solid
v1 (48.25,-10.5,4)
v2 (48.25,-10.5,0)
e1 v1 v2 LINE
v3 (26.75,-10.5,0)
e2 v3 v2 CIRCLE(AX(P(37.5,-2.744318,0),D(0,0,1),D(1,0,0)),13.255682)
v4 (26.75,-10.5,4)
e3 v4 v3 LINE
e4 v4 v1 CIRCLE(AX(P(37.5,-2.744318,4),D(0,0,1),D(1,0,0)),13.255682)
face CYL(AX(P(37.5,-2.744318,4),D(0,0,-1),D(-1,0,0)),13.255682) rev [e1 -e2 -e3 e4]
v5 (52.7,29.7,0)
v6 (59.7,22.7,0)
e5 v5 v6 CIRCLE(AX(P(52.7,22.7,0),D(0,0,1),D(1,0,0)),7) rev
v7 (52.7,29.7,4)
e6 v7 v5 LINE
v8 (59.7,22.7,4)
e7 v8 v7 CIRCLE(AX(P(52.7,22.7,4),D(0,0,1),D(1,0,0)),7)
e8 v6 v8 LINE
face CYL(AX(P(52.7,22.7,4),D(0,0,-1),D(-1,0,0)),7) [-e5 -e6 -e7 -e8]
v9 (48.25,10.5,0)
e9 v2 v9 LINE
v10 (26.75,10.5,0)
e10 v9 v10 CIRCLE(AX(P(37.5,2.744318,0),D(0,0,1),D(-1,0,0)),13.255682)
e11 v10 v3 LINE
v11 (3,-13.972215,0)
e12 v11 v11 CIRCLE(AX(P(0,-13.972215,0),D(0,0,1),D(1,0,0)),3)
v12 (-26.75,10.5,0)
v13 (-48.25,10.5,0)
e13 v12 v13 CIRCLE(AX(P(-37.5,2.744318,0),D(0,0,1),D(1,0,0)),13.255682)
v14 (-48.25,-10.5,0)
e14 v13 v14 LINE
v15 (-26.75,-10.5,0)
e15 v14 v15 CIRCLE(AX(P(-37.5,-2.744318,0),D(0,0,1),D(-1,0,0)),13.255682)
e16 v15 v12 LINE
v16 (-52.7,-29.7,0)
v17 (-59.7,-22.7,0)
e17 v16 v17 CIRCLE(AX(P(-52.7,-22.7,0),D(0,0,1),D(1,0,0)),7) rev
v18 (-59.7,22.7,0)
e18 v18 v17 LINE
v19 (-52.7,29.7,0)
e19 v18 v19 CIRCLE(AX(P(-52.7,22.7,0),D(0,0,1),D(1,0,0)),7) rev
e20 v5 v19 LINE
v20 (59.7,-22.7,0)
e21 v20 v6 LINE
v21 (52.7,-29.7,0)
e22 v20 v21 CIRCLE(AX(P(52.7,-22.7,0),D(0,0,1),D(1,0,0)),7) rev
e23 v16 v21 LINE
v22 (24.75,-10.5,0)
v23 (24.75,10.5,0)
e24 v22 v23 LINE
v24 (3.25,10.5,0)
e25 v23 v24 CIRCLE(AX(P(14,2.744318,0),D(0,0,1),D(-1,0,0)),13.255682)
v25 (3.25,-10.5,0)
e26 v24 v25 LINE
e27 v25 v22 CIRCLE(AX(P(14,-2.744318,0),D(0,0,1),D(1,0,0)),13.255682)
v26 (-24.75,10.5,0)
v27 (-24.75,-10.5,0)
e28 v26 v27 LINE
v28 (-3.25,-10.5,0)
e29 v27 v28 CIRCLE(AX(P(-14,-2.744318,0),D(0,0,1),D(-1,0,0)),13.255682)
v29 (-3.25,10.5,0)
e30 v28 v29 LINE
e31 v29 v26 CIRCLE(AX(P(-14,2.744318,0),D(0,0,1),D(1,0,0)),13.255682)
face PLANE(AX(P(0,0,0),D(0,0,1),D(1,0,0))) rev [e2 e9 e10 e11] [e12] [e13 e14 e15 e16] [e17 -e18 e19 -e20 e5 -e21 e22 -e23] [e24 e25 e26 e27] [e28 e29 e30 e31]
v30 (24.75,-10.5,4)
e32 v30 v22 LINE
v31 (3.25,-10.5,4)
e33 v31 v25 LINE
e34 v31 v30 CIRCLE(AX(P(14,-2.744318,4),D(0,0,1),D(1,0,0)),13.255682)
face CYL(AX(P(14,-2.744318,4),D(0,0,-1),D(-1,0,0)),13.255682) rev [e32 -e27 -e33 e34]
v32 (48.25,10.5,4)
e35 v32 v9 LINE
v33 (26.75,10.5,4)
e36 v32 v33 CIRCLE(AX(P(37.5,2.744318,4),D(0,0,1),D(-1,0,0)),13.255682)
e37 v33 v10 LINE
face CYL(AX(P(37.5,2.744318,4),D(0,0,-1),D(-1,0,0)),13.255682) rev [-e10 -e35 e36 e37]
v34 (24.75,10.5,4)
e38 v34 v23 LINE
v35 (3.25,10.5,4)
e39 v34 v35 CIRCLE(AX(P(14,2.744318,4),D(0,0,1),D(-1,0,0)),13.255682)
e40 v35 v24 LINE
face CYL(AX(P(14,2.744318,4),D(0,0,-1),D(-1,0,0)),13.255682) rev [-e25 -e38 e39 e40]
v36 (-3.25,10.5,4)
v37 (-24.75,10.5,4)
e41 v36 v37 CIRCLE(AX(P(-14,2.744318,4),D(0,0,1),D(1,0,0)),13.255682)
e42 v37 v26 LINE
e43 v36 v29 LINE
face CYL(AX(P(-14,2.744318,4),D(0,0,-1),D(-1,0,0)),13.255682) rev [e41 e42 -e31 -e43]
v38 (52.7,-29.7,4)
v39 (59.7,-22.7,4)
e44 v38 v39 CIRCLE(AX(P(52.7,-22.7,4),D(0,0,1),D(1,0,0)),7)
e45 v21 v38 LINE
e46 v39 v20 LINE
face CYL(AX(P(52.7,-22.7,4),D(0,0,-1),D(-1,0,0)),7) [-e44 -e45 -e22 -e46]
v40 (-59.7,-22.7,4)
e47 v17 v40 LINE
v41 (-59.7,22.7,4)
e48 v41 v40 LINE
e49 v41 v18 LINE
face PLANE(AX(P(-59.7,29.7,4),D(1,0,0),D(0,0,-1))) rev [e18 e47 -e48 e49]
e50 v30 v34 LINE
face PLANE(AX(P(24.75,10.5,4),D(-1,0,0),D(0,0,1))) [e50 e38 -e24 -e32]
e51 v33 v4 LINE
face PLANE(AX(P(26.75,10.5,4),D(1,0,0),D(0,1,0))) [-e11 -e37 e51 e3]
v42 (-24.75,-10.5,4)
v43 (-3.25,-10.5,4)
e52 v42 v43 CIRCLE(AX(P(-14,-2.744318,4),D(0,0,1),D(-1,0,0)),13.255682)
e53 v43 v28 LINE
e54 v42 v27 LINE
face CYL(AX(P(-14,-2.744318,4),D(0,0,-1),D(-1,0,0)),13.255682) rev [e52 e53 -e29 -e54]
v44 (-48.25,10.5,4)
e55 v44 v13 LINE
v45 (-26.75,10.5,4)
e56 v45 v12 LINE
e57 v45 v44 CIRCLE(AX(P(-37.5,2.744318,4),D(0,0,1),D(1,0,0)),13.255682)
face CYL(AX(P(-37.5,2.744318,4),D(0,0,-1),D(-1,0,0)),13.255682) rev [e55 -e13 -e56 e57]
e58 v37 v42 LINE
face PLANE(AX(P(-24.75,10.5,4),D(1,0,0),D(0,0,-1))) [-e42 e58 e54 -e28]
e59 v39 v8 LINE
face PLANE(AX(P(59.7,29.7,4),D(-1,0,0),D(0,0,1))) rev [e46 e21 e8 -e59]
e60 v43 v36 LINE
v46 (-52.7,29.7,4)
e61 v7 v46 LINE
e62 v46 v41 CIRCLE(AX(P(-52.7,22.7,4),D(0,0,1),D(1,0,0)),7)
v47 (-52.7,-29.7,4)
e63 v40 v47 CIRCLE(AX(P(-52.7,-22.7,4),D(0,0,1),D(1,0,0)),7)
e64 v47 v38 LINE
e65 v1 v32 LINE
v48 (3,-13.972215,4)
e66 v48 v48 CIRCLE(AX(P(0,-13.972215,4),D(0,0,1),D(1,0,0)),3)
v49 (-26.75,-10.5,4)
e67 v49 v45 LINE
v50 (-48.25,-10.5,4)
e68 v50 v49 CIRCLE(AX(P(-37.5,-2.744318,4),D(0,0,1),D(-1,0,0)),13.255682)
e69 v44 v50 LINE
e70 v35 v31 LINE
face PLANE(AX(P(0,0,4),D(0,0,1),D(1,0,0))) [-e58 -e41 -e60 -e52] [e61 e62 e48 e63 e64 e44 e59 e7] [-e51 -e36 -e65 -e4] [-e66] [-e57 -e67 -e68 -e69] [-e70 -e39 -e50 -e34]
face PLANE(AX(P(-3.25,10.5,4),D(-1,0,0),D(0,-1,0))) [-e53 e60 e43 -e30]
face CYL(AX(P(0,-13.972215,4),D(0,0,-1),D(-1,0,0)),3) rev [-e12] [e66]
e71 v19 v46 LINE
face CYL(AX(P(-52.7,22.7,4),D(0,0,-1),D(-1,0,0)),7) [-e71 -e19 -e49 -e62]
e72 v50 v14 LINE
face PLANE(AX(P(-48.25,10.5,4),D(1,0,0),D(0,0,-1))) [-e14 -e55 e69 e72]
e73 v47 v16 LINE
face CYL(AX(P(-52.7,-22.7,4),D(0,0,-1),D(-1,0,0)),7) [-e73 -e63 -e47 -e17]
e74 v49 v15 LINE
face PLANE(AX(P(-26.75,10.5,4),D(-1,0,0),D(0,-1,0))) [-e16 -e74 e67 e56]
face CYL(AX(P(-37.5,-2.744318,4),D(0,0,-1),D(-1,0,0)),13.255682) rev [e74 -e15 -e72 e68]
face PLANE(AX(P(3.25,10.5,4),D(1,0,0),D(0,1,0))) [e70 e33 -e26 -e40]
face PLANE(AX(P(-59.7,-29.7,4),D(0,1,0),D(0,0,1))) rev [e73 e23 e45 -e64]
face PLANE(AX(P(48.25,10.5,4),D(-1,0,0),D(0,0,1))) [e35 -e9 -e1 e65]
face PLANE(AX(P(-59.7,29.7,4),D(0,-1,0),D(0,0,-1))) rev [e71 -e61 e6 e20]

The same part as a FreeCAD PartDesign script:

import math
import FreeCAD as App
import Part
import Sketcher
from FreeCAD import Vector
Q = App.Units.Quantity


def edges_at(feature, points):
    """Names of the edges that pass closest to the given points."""
    edges = feature.Shape.Edges
    near = lambda p: min(range(len(edges)), key=lambda i: edges[i].distToShape(Part.Vertex(*p))[0])
    return sorted({f"Edge{near(p) + 1}" for p in points})


def add_polygon(sketch, points):
    """Adds a closed chain of lines whose ends are joined by coincident constraints."""
    first, n = sketch.GeometryCount, len(points)
    for a, b in zip(points, points[1:] + points[:1]):
        sketch.addGeometry(Part.LineSegment(App.Vector(*a, 0), App.Vector(*b, 0)), False)
    for i in range(n):
        sketch.addConstraint(Sketcher.Constraint("Coincident", first + i, 2, first + (i + 1) % n, 1))

doc = App.newDocument("Part")
body = doc.addObject("PartDesign::Body", "Body")

# Sketch on XY plane
sketch1 = doc.addObject("Sketcher::SketchObject", "Sketch")
body.addObject(sketch1)
sketch1.AttachmentSupport = (doc.XY_Plane, [""])
sketch1.MapMode = "FlatFace"
add_polygon(sketch1, [(-59.7, 29.7), (-59.7, -29.7), (59.7, -29.7), (59.7, 29.7)])  # lines 0-3
sketch1.addGeometry(Part.Circle(Vector(0, -14, 0), Vector(0, 0, 1), 3), False)  # 4
sketch1.addGeometry(Part.ArcOfCircle(Part.Circle(Vector(-37.5, 2.7, 0), Vector(0, 0, 1), 13.3), math.radians(36), math.radians(144)), False)  # 5
sketch1.addGeometry(Part.LineSegment(Vector(-26.8, 10.5, 0), Vector(-26.8, -10.5, 0)), False)  # 6
sketch1.addGeometry(Part.ArcOfCircle(Part.Circle(Vector(-37.5, -2.7, 0), Vector(0, 0, 1), 13.3), math.radians(-144), math.radians(-36)), False)  # 7
sketch1.addGeometry(Part.LineSegment(Vector(-48.2, -10.5, 0), Vector(-48.2, 10.5, 0)), False)  # 8
sketch1.addGeometry(Part.ArcOfCircle(Part.Circle(Vector(-14, 2.7, 0), Vector(0, 0, 1), 13.3), math.radians(36), math.radians(144)), False)  # 9
sketch1.addGeometry(Part.LineSegment(Vector(-3.2, 10.5, 0), Vector(-3.2, -10.5, 0)), False)  # 10
sketch1.addGeometry(Part.ArcOfCircle(Part.Circle(Vector(-14, -2.7, 0), Vector(0, 0, 1), 13.3), math.radians(-144), math.radians(-36)), False)  # 11
sketch1.addGeometry(Part.LineSegment(Vector(-24.8, -10.5, 0), Vector(-24.8, 10.5, 0)), False)  # 12
sketch1.addGeometry(Part.LineSegment(Vector(3.2, -10.5, 0), Vector(3.2, 10.5, 0)), False)  # 13
sketch1.addGeometry(Part.ArcOfCircle(Part.Circle(Vector(14, 2.7, 0), Vector(0, 0, 1), 13.3), math.radians(36), math.radians(144)), False)  # 14
sketch1.addGeometry(Part.LineSegment(Vector(24.8, 10.5, 0), Vector(24.8, -10.5, 0)), False)  # 15
sketch1.addGeometry(Part.ArcOfCircle(Part.Circle(Vector(14, -2.7, 0), Vector(0, 0, 1), 13.3), math.radians(-144), math.radians(-36)), False)  # 16
sketch1.addGeometry(Part.ArcOfCircle(Part.Circle(Vector(37.5, 2.7, 0), Vector(0, 0, 1), 13.3), math.radians(36), math.radians(144)), False)  # 17
sketch1.addGeometry(Part.LineSegment(Vector(48.2, 10.5, 0), Vector(48.2, -10.5, 0)), False)  # 18
sketch1.addGeometry(Part.ArcOfCircle(Part.Circle(Vector(37.5, -2.7, 0), Vector(0, 0, 1), 13.3), math.radians(-144), math.radians(-36)), False)  # 19
sketch1.addGeometry(Part.LineSegment(Vector(26.8, -10.5, 0), Vector(26.8, 10.5, 0)), False)  # 20
sketch1.addConstraint([
    Sketcher.Constraint("Coincident", 5, 1, 6, 1),
    Sketcher.Constraint("Coincident", 6, 2, 7, 2),
    Sketcher.Constraint("Coincident", 7, 1, 8, 1),
    Sketcher.Constraint("Coincident", 8, 2, 5, 2),
    Sketcher.Constraint("Coincident", 9, 1, 10, 1),
    Sketcher.Constraint("Coincident", 10, 2, 11, 2),
    Sketcher.Constraint("Coincident", 11, 1, 12, 1),
    Sketcher.Constraint("Coincident", 12, 2, 9, 2),
    Sketcher.Constraint("Coincident", 13, 2, 14, 2),
    Sketcher.Constraint("Coincident", 14, 1, 15, 1),
    Sketcher.Constraint("Coincident", 15, 2, 16, 2),
    Sketcher.Constraint("Coincident", 16, 1, 13, 1),
    Sketcher.Constraint("Coincident", 17, 1, 18, 1),
    Sketcher.Constraint("Coincident", 18, 2, 19, 2),
    Sketcher.Constraint("Coincident", 19, 1, 20, 1),
    Sketcher.Constraint("Coincident", 20, 2, 17, 2),
    Sketcher.Constraint("Vertical", 0),
    Sketcher.Constraint("Horizontal", 1),
    Sketcher.Constraint("Vertical", 2),
    Sketcher.Constraint("Horizontal", 3),
    Sketcher.Constraint("Vertical", 6),
    Sketcher.Constraint("Vertical", 8),
    Sketcher.Constraint("Vertical", 10),
    Sketcher.Constraint("Vertical", 12),
    Sketcher.Constraint("Vertical", 13),
    Sketcher.Constraint("Vertical", 15),
    Sketcher.Constraint("Vertical", 18),
    Sketcher.Constraint("Vertical", 20),
    Sketcher.Constraint("Equal", 5, 7),
    Sketcher.Constraint("Equal", 7, 9),
    Sketcher.Constraint("Equal", 9, 11),
    Sketcher.Constraint("Equal", 11, 14),
    Sketcher.Constraint("Equal", 14, 16),
    Sketcher.Constraint("Equal", 16, 17),
    Sketcher.Constraint("Equal", 17, 19),
    Sketcher.Constraint("Symmetric", 11, 3, 14, 3, -1, 1),
    Sketcher.Constraint("Symmetric", 9, 3, 16, 3, -1, 1),
    Sketcher.Constraint("Symmetric", 7, 3, 17, 3, -1, 1),
    Sketcher.Constraint("Symmetric", 5, 3, 19, 3, -1, 1),
    Sketcher.Constraint("Symmetric", 0, 2, 2, 2, -1, 1),
    Sketcher.Constraint("Symmetric", 9, 3, 14, 3, -2),
    Sketcher.Constraint("Symmetric", 5, 3, 17, 3, -2),
    Sketcher.Constraint("PointOnObject", 4, 3, -2),
    Sketcher.Constraint("Horizontal", 5, 3, 9, 3),
    Sketcher.Constraint("Horizontal", 6, 2, 7, 1),
    Sketcher.Constraint("Horizontal", 8, 2, 9, 1),
    Sketcher.Constraint("Horizontal", 10, 2, 11, 1),
    Sketcher.Constraint("Horizontal", 12, 2, 13, 2),
    Sketcher.Constraint("Horizontal", 13, 2, 14, 1),
    Sketcher.Constraint("Horizontal", 14, 1, 17, 1),
    Sketcher.Constraint("Horizontal", 18, 2, 19, 1),
    Sketcher.Constraint("Diameter", 4, Q("6 mm")),
    Sketcher.Constraint("DistanceY", 6, 2, 6, 1, Q("21 mm")),
    Sketcher.Constraint("DistanceX", 1, 1, 1, 2, Q("119.4 mm")),
    Sketcher.Constraint("DistanceY", 0, 2, 0, 1, Q("59.4 mm")),
    Sketcher.Constraint("DistanceX", 9, 3, -1, 1, Q("14 mm")),
    Sketcher.Constraint("DistanceX", 6, 2, 11, 1, Q("2 mm")),
    Sketcher.Constraint("DistanceX", 5, 3, -1, 1, Q("37.5 mm")),
    Sketcher.Constraint("Radius", 5, Q("13.255682 mm")),
    Sketcher.Constraint("DistanceY", 4, 3, -1, 1, Q("13.972215 mm")),
])
pad1 = doc.addObject("PartDesign::Pad", "Pad")
body.addObject(pad1)
pad1.Profile = sketch1
pad1.Length = 4
doc.recompute()

fillet = doc.addObject("PartDesign::Fillet", "Fillet")
body.addObject(fillet)
fillet.Base = (pad1, edges_at(pad1, [
    (59.7, -29.7, 2),
    (-59.7, -29.7, 2),
    (-59.7, 29.7, 2),
    (59.7, 29.7, 2),
]))
fillet.Radius = 7

doc.recompute()
